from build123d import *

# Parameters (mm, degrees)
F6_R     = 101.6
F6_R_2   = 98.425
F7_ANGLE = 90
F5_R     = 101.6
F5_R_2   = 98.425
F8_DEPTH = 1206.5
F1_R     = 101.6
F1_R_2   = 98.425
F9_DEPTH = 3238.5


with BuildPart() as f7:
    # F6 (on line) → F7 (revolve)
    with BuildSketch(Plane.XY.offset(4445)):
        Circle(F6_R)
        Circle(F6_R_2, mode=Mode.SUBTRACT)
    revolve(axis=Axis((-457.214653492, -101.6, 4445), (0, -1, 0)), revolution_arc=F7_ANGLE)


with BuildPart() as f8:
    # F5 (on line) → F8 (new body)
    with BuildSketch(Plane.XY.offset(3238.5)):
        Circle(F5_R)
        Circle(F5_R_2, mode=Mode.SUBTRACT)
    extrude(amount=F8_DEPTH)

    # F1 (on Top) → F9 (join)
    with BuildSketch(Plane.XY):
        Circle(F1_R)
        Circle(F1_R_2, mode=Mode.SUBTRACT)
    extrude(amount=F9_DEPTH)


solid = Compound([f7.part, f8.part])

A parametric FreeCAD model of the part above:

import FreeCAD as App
import Part
import Sketcher
from FreeCAD import Vector
Q = App.Units.Quantity

doc = App.newDocument("Part")
body = doc.addObject("PartDesign::Body", "Body")

# Sketch on XY plane
sketch1 = doc.addObject("Sketcher::SketchObject", "Sketch")
body.addObject(sketch1)
sketch1.AttachmentSupport = (doc.XY_Plane, [""])
sketch1.MapMode = "FlatFace"
sketch1.AttachmentOffset = App.Placement(Vector(0, 0, 175 * 25.4), App.Rotation())
sketch1.addGeometry(Part.Circle(Vector(0, 0, 0), Vector(0, 0, 1), 101.6), False)
sketch1.addGeometry(Part.Circle(Vector(0, 0, 0), Vector(0, 0, 1), 98.425), False)
sketch1.addGeometry(Part.LineSegment(Vector(-457.214653, 0, 0), Vector(-457.214653, -10, 0)), True)  # axis
sketch1.addConstraint(Sketcher.Constraint("Vertical", 2))
sketch1.addConstraint(Sketcher.Constraint("Coincident", 0, 3, -1, 1))
sketch1.addConstraint(Sketcher.Constraint("Coincident", 1, 3, -1, 1))
sketch1.addConstraint(Sketcher.Constraint("PointOnObject", 2, 1, -1))
sketch1.addConstraint(Sketcher.Constraint("Diameter", 0, Q("8 in")))
sketch1.addConstraint(Sketcher.Constraint("Diameter", 1, Q("7.75 in")))
sketch1.addConstraint(Sketcher.Constraint("DistanceY", 2, 2, 2, 1, 10.0))
sketch1.addConstraint(Sketcher.Constraint("DistanceX", 2, 1, -1, 1, 457.214653))
revolution = doc.addObject("PartDesign::Revolution", "Revolution")
body.addObject(revolution)
revolution.Profile = sketch1
revolution.ReferenceAxis = (sketch1, ["Axis0"])
revolution.Angle = 90
body2 = doc.addObject("PartDesign::Body", "Body001")

# Sketch on XY plane
sketch2 = doc.addObject("Sketcher::SketchObject", "Sketch001")
body2.addObject(sketch2)
sketch2.AttachmentSupport = (doc.getObject("XY_Plane001"), [""])
sketch2.MapMode = "FlatFace"
sketch2.AttachmentOffset = App.Placement(Vector(0, 0, 127.5 * 25.4), App.Rotation())
sketch2.addGeometry(Part.Circle(Vector(0, 0, 0), Vector(0, 0, 1), 101.6), False)
sketch2.addGeometry(Part.Circle(Vector(0, 0, 0), Vector(0, 0, 1), 98.425), False)
sketch2.addConstraint(Sketcher.Constraint("Coincident", 0, 3, -1, 1))
sketch2.addConstraint(Sketcher.Constraint("Coincident", 1, 3, -1, 1))
sketch2.addConstraint(Sketcher.Constraint("Diameter", 0, Q("8 in")))
sketch2.addConstraint(Sketcher.Constraint("Diameter", 1, Q("7.75 in")))
pad1 = doc.addObject("PartDesign::Pad", "Pad")
body2.addObject(pad1)
pad1.Profile = sketch2
pad1.Length = Q("47.5 in")

# Sketch on XY plane
sketch3 = doc.addObject("Sketcher::SketchObject", "Sketch002")
body2.addObject(sketch3)
sketch3.AttachmentSupport = (doc.getObject("XY_Plane001"), [""])
sketch3.MapMode = "FlatFace"
sketch3.addGeometry(Part.Circle(Vector(0, 0, 0), Vector(0, 0, 1), 101.6), False)
sketch3.addGeometry(Part.Circle(Vector(0, 0, 0), Vector(0, 0, 1), 98.425), False)
sketch3.addConstraint(Sketcher.Constraint("Coincident", 0, 3, -1, 1))
sketch3.addConstraint(Sketcher.Constraint("Coincident", 1, 3, -1, 1))
sketch3.addConstraint(Sketcher.Constraint("Diameter", 0, Q("8 in")))
sketch3.addConstraint(Sketcher.Constraint("Diameter", 1, Q("7.75 in")))
pad2 = doc.addObject("PartDesign::Pad", "Pad001")
body2.addObject(pad2)
pad2.Profile = sketch3
pad2.Length = Q("127.5 in")

doc.recompute()
